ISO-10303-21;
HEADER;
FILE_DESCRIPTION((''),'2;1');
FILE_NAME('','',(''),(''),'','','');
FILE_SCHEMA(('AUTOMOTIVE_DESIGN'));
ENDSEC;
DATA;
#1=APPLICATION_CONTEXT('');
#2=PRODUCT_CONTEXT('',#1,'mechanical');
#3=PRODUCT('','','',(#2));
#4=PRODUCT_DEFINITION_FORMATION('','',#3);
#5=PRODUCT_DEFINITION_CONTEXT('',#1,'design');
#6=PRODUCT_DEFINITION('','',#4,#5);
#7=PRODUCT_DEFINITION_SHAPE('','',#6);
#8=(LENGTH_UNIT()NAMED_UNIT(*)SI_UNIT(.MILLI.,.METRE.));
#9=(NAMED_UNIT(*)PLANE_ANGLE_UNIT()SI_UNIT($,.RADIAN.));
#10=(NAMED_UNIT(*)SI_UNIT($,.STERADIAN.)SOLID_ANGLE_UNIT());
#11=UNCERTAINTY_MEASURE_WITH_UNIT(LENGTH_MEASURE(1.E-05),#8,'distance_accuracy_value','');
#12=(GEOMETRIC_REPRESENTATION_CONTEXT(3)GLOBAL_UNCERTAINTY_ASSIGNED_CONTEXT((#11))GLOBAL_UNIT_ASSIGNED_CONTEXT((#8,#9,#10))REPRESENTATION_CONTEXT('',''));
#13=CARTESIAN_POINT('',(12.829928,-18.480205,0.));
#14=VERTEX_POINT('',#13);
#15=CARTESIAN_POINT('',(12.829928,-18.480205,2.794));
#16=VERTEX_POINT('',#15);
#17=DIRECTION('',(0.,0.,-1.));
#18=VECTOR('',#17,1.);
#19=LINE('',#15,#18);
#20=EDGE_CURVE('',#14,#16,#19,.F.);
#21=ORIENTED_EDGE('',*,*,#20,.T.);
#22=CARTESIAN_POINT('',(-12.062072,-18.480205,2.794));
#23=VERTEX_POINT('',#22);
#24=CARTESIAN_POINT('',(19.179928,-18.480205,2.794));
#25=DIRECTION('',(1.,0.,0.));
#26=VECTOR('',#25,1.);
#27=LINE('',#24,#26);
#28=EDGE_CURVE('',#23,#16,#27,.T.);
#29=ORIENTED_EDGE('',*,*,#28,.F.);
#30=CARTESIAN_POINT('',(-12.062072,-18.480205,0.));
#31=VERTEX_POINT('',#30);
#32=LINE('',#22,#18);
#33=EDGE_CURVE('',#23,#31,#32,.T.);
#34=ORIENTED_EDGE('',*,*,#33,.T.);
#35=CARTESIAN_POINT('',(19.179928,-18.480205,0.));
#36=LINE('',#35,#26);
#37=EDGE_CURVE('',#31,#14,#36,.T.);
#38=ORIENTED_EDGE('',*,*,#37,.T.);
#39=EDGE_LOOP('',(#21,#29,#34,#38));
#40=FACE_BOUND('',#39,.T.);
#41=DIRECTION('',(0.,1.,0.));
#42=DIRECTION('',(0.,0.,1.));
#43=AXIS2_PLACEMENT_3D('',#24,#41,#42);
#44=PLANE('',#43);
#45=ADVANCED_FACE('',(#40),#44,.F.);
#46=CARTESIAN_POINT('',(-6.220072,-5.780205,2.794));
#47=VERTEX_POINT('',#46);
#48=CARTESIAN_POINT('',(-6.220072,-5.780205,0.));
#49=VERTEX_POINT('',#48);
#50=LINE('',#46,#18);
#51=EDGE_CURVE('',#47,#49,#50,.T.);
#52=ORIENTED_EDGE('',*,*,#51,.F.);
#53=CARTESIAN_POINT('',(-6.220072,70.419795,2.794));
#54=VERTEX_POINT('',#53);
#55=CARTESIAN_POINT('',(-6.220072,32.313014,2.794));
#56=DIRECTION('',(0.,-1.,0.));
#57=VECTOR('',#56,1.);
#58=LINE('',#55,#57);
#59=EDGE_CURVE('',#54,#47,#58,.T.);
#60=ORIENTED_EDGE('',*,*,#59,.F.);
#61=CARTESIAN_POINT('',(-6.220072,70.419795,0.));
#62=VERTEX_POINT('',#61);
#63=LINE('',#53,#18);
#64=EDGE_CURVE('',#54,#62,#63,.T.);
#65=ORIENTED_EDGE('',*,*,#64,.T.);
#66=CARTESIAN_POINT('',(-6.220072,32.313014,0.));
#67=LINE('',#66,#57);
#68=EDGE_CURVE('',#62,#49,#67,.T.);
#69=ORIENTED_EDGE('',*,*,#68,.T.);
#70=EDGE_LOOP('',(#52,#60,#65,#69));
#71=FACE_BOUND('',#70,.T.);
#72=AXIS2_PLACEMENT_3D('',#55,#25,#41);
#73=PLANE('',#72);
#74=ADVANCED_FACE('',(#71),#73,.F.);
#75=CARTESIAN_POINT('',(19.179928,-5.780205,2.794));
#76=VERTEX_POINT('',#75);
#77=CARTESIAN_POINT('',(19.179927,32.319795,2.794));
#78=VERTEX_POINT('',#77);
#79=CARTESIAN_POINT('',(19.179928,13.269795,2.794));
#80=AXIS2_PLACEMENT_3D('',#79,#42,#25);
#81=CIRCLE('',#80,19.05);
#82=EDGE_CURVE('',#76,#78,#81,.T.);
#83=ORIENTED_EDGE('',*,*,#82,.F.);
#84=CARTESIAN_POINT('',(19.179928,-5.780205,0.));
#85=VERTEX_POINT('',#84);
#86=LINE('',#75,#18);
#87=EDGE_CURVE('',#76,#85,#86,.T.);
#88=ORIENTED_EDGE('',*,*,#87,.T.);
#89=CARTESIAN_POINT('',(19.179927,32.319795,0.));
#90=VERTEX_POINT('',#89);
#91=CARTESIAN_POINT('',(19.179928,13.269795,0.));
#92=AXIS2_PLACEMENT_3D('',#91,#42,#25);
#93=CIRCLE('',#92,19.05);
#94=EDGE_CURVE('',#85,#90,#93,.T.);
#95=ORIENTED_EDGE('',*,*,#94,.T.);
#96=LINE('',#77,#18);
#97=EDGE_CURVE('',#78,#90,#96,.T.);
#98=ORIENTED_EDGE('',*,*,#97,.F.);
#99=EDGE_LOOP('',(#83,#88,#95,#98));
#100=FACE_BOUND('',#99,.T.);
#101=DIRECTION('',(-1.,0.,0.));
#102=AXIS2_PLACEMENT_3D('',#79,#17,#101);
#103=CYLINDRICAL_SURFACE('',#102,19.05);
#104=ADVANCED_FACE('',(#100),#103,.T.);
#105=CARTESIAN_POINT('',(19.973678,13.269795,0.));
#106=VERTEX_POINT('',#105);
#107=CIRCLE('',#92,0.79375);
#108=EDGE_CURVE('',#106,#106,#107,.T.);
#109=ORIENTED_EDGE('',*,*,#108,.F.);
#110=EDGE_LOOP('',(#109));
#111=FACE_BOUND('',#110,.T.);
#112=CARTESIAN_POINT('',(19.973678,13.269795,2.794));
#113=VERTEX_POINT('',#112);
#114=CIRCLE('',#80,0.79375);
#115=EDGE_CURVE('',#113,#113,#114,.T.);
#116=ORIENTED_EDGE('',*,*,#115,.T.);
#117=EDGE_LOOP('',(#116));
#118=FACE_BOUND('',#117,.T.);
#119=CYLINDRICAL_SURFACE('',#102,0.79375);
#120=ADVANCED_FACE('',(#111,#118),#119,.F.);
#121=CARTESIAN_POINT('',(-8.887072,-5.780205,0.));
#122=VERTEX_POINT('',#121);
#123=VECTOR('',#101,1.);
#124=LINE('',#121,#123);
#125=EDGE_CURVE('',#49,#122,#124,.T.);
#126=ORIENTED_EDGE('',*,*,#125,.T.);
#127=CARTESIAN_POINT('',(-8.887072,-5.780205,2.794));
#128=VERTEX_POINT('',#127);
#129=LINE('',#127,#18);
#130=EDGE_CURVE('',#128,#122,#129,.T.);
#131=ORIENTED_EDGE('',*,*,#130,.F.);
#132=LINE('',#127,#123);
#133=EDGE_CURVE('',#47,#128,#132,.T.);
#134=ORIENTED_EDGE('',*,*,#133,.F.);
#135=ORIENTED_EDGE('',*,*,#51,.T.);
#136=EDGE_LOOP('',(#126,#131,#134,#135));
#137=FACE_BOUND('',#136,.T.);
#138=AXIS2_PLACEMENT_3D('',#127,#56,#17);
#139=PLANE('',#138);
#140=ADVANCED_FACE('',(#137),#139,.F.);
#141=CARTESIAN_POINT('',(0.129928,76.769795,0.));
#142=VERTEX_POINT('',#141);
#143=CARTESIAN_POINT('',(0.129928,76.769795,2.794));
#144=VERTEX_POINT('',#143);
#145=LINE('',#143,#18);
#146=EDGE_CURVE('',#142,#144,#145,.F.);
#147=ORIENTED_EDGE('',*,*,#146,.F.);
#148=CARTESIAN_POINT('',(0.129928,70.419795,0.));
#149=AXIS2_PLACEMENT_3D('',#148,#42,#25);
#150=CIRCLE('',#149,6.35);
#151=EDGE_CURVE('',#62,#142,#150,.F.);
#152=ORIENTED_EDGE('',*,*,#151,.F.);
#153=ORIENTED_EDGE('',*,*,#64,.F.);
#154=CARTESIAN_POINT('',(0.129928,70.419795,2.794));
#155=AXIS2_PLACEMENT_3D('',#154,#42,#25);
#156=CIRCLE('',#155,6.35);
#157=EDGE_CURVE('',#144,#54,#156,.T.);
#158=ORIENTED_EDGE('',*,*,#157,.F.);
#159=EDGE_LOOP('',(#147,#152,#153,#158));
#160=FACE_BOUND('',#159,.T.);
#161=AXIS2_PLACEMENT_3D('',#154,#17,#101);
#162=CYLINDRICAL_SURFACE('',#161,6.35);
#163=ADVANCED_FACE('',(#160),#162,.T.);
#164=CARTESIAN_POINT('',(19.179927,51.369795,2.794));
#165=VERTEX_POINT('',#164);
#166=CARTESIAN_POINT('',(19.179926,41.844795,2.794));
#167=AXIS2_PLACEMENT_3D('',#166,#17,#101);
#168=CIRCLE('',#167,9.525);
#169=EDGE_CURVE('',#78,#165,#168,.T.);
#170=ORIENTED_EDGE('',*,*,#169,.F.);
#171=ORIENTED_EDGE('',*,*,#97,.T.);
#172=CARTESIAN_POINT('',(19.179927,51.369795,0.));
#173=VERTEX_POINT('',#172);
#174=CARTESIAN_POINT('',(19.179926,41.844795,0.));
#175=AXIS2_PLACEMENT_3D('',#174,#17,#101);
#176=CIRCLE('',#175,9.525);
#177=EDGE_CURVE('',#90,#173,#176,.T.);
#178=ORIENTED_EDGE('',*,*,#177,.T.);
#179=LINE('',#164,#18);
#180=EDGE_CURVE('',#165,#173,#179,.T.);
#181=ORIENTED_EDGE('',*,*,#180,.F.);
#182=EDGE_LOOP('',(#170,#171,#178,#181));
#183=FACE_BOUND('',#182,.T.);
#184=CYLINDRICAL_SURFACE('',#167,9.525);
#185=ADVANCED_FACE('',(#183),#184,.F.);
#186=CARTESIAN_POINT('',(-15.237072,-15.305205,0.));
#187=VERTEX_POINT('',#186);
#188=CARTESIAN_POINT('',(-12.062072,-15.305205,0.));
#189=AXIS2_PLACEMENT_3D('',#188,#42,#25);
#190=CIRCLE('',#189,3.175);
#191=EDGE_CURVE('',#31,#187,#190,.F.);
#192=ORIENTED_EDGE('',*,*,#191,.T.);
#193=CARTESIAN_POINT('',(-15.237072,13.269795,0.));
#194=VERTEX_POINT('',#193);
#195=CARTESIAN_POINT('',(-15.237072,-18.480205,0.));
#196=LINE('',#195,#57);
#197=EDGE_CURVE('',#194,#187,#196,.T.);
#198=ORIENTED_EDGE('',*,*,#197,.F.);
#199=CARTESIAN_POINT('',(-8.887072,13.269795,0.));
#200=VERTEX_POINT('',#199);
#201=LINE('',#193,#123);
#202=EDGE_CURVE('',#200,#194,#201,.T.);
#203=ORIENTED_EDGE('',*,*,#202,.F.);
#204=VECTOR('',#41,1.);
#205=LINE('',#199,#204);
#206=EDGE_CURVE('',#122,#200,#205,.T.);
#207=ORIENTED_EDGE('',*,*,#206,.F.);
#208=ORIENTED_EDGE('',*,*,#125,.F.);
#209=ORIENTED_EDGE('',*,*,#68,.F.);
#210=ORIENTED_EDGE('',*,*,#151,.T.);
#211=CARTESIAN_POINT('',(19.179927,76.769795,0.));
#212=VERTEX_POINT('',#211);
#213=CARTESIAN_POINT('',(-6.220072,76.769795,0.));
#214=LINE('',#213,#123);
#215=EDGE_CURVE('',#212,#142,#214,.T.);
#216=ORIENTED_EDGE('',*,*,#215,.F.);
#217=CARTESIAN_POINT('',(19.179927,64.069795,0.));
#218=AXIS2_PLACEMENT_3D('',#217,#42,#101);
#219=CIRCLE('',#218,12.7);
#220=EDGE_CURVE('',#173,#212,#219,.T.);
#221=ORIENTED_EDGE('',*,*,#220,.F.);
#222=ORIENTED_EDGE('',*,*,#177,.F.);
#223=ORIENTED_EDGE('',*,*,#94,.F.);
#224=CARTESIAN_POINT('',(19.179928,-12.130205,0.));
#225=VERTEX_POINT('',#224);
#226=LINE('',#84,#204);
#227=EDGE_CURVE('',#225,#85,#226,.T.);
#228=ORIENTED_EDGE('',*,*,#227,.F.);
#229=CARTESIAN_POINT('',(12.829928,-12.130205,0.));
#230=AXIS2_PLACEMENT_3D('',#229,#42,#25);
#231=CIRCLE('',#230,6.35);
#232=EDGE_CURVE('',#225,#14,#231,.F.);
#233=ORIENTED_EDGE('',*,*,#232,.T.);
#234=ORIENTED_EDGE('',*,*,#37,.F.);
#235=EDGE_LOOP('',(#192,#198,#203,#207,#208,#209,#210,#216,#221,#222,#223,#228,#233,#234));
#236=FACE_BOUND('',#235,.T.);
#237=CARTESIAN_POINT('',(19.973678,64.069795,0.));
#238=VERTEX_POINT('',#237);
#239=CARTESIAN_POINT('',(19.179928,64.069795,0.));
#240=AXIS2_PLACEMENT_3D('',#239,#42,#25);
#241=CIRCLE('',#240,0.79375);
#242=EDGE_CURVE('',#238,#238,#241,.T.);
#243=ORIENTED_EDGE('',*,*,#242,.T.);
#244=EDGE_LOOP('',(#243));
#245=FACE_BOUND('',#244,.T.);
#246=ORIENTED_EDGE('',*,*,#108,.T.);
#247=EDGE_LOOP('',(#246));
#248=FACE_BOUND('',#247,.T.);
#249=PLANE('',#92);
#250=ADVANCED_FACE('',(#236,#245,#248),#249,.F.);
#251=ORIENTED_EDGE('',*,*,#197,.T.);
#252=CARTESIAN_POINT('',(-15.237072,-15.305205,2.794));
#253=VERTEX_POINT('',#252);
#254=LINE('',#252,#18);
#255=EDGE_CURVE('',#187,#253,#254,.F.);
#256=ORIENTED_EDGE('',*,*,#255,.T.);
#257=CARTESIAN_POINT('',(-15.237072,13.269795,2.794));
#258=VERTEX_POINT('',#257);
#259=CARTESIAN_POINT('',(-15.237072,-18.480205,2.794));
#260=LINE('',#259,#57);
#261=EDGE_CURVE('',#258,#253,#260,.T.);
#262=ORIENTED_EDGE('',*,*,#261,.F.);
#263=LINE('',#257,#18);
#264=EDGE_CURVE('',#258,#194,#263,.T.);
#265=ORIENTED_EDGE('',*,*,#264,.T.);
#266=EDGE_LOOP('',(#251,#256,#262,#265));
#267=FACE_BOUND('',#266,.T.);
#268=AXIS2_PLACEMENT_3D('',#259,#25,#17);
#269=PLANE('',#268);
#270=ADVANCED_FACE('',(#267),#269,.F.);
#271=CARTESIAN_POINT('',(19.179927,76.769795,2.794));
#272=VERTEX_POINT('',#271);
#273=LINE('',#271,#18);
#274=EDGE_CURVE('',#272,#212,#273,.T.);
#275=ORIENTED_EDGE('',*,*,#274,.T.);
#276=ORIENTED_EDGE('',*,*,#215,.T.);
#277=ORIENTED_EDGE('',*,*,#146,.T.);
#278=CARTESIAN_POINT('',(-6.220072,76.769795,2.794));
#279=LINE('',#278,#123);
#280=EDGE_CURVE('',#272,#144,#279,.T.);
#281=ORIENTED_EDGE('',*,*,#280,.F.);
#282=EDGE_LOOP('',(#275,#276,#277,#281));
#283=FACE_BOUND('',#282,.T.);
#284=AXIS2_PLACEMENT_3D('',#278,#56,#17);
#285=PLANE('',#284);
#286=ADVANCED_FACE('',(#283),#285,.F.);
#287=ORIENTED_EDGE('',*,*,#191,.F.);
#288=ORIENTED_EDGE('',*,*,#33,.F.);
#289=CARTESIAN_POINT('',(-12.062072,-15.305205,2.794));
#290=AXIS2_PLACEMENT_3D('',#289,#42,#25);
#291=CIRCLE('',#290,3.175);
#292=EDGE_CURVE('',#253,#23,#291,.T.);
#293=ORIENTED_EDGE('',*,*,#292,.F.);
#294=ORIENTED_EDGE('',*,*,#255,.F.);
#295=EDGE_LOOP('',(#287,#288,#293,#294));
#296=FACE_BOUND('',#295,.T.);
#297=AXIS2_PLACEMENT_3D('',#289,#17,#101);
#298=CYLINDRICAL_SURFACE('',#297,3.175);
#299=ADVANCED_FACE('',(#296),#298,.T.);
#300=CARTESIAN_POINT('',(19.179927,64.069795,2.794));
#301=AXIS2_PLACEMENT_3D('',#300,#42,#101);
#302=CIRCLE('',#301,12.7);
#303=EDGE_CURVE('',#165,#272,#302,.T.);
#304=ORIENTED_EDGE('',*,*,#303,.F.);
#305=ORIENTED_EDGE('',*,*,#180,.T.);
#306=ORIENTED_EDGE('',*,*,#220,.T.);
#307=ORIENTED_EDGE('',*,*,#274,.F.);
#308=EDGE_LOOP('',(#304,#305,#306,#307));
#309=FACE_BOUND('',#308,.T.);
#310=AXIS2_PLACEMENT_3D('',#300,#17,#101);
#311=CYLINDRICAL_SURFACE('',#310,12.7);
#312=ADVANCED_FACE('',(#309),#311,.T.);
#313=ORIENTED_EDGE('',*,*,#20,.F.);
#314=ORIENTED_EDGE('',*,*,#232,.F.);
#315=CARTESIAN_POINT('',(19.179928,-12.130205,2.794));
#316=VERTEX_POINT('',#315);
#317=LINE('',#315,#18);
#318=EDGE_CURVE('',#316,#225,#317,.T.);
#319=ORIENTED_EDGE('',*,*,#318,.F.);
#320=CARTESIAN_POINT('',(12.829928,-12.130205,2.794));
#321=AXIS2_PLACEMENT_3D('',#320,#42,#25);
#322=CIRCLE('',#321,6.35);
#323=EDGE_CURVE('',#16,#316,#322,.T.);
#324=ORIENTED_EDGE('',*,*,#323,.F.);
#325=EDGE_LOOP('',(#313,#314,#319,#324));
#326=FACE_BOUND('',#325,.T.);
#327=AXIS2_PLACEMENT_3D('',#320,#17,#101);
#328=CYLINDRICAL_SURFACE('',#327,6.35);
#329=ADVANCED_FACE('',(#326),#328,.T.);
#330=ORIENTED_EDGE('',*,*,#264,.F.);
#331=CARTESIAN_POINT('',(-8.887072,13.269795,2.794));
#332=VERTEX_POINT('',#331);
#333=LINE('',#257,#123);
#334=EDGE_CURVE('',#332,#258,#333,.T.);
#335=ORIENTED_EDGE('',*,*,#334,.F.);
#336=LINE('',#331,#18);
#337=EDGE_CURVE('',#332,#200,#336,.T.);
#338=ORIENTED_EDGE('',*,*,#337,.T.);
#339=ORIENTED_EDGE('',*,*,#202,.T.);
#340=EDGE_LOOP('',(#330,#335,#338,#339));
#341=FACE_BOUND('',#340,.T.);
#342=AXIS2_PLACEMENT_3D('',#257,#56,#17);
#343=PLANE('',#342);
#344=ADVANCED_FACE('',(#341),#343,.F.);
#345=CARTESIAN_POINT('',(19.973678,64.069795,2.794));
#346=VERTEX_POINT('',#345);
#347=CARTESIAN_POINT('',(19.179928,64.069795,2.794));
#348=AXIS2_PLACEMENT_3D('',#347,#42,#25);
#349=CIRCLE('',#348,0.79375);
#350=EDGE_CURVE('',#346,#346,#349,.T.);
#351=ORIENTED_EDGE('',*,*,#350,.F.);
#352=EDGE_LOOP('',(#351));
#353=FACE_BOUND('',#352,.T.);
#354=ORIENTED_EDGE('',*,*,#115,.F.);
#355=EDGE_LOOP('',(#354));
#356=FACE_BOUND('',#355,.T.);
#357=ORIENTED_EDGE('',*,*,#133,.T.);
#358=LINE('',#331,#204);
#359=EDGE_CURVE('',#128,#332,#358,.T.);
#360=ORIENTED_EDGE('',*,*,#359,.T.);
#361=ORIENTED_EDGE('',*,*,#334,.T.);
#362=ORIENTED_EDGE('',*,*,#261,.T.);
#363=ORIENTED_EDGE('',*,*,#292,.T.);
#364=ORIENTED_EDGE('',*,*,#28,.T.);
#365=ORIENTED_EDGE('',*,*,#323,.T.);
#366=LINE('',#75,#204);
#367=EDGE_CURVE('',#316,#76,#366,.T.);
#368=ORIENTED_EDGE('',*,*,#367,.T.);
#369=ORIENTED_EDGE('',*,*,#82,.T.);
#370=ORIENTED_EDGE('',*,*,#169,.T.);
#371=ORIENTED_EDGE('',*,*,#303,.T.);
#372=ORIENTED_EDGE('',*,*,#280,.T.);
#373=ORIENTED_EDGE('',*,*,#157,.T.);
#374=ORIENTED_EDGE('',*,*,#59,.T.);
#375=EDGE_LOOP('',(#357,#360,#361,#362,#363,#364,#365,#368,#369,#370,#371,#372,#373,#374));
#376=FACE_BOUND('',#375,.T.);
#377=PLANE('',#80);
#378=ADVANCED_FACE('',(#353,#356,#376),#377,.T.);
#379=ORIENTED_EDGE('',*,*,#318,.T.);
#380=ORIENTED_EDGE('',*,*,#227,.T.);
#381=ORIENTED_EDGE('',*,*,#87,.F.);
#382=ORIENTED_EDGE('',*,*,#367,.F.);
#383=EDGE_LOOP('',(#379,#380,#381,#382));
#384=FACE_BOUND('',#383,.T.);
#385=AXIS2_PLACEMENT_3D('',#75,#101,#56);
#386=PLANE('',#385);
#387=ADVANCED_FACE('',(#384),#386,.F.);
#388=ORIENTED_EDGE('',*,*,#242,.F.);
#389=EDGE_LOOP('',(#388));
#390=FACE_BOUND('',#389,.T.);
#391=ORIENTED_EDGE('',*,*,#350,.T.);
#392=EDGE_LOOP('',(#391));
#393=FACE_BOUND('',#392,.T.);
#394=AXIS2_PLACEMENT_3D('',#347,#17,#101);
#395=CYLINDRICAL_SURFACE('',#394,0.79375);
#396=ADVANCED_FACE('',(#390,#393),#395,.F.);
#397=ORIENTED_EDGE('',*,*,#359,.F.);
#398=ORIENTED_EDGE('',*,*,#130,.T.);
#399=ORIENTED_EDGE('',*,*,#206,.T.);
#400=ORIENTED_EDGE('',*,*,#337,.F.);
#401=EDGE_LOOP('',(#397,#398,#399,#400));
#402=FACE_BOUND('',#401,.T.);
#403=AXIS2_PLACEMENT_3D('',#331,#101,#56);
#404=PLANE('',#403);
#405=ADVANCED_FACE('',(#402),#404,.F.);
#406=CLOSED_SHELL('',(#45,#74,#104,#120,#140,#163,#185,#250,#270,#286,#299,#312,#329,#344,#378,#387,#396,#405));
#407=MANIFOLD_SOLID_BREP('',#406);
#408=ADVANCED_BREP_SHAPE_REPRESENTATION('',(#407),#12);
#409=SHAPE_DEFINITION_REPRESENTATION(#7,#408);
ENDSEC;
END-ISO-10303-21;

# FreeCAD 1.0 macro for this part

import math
import FreeCAD as App
import Part
import Sketcher
from FreeCAD import Vector
Q = App.Units.Quantity


def edges_at(feature, points):
    """Names of the edges that pass closest to the given points."""
    edges = feature.Shape.Edges
    near = lambda p: min(range(len(edges)), key=lambda i: edges[i].distToShape(Part.Vertex(*p))[0])
    return sorted({f"Edge{near(p) + 1}" for p in points})

doc = App.newDocument("Part")
body = doc.addObject("PartDesign::Body", "Body")

# Sketch on XY plane
sketch1 = doc.addObject("Sketcher::SketchObject", "Sketch")
body.addObject(sketch1)
sketch1.AttachmentSupport = (doc.XY_Plane, [""])
sketch1.MapMode = "FlatFace"
sketch1.addGeometry(Part.LineSegment(Vector(-8.9, 13.3, 0), Vector(-15.2, 13.3, 0)), False)
sketch1.addGeometry(Part.LineSegment(Vector(-15.2, 13.3, 0), Vector(-15.2, -18.5, 0)), False)
sketch1.addGeometry(Part.LineSegment(Vector(-15.2, -18.5, 0), Vector(19.2, -18.5, 0)), False)
sketch1.addGeometry(Part.LineSegment(Vector(19.2, -18.5, 0), Vector(19.2, -5.8, 0)), False)
sketch1.addGeometry(Part.ArcOfCircle(Part.Circle(Vector(19.2, 13.3, 0), Vector(0, 0, 1), 19.1), math.radians(-90), math.radians(90)), False)
sketch1.addGeometry(Part.ArcOfCircle(Part.Circle(Vector(19.2, 41.8, 0), Vector(0, 0, 1), 9.5), math.radians(90), math.radians(270)), False)
sketch1.addGeometry(Part.ArcOfCircle(Part.Circle(Vector(19.2, 64.1, 0), Vector(0, 0, 1), 12.7), math.radians(-90), math.radians(90)), False)
sketch1.addGeometry(Part.LineSegment(Vector(19.2, 76.8, 0), Vector(-6.2, 76.8, 0)), False)
sketch1.addGeometry(Part.LineSegment(Vector(-6.2, 76.8, 0), Vector(-6.2, -5.8, 0)), False)
sketch1.addGeometry(Part.LineSegment(Vector(-6.2, -5.8, 0), Vector(-8.9, -5.8, 0)), False)
sketch1.addGeometry(Part.LineSegment(Vector(-8.9, -5.8, 0), Vector(-8.9, 13.3, 0)), False)
sketch1.addGeometry(Part.Circle(Vector(19.2, 13.3, 0), Vector(0, 0, 1), 0.8), False)
sketch1.addGeometry(Part.Circle(Vector(19.2, 64.1, 0), Vector(0, 0, 1), 0.8), False)
sketch1.addConstraint(Sketcher.Constraint("Coincident", 0, 2, 1, 1))
sketch1.addConstraint(Sketcher.Constraint("Coincident", 1, 2, 2, 1))
sketch1.addConstraint(Sketcher.Constraint("Coincident", 2, 2, 3, 1))
sketch1.addConstraint(Sketcher.Constraint("Coincident", 3, 2, 4, 1))
sketch1.addConstraint(Sketcher.Constraint("Tangent", 4, 2, 5, 2))
sketch1.addConstraint(Sketcher.Constraint("Tangent", 5, 1, 6, 1))
sketch1.addConstraint(Sketcher.Constraint("Tangent", 6, 2, 7, 1))
sketch1.addConstraint(Sketcher.Constraint("Coincident", 7, 2, 8, 1))
sketch1.addConstraint(Sketcher.Constraint("Coincident", 8, 2, 9, 1))
sketch1.addConstraint(Sketcher.Constraint("Coincident", 9, 2, 10, 1))
sketch1.addConstraint(Sketcher.Constraint("Coincident", 10, 2, 0, 1))
sketch1.addConstraint(Sketcher.Constraint("Horizontal", 0))
sketch1.addConstraint(Sketcher.Constraint("Vertical", 1))
sketch1.addConstraint(Sketcher.Constraint("Horizontal", 2))
sketch1.addConstraint(Sketcher.Constraint("Vertical", 3))
sketch1.addConstraint(Sketcher.Constraint("Horizontal", 7))
sketch1.addConstraint(Sketcher.Constraint("Vertical", 8))
sketch1.addConstraint(Sketcher.Constraint("Horizontal", 9))
sketch1.addConstraint(Sketcher.Constraint("Vertical", 10))
sketch1.addConstraint(Sketcher.Constraint("Coincident", 11, 3, 4, 3))
sketch1.addConstraint(Sketcher.Constraint("Coincident", 12, 3, 6, 3))
sketch1.addConstraint(Sketcher.Constraint("Equal", 11, 12))
sketch1.addConstraint(Sketcher.Constraint("Horizontal", 11, 3, 0, 2))
sketch1.addConstraint(Sketcher.Constraint("Horizontal", 3, 2, 8, 2))
sketch1.addConstraint(Sketcher.Constraint("Vertical", 4, 3, 5, 3))
sketch1.addConstraint(Sketcher.Constraint("Vertical", 5, 3, 6, 3))
sketch1.addConstraint(Sketcher.Constraint("Vertical", 12, 3, 2, 2))
sketch1.addConstraint(Sketcher.Constraint("Radius", 6, Q("0.5 in")))
sketch1.addConstraint(Sketcher.Constraint("DistanceX", 7, 2, 7, 1, Q("1 in")))
sketch1.addConstraint(Sketcher.Constraint("Radius", 4, Q("0.75 in")))
sketch1.addConstraint(Sketcher.Constraint("Diameter", 11, Q("0.0625 in")))
sketch1.addConstraint(Sketcher.Constraint("DistanceY", 3, 1, 3, 2, Q("0.5 in")))
sketch1.addConstraint(Sketcher.Constraint("Radius", 5, Q("0.375 in")))
sketch1.addConstraint(Sketcher.Constraint("DistanceX", 0, 2, 0, 1, Q("0.25 in")))
sketch1.addConstraint(Sketcher.Constraint("DistanceX", 2, 1, 2, 2, Q("1.355 in")))
sketch1.addConstraint(Sketcher.Constraint("DistanceX", -1, 1, 4, 3, Q("19.179928 mm")))
sketch1.addConstraint(Sketcher.Constraint("DistanceY", -1, 1, 4, 3, Q("13.269795 mm")))
pad1 = doc.addObject("PartDesign::Pad", "Pad")
body.addObject(pad1)
pad1.Profile = sketch1
pad1.Length = Q("0.11 in")
doc.recompute()

fillet = doc.addObject("PartDesign::Fillet", "Fillet")
body.addObject(fillet)
fillet.Base = (pad1, edges_at(pad1, [(19.18, -18.48, 1.397), (-6.22, 76.77, 1.397)]))
fillet.Radius = Q("0.25 in")
doc.recompute()

fillet2 = doc.addObject("PartDesign::Fillet", "Fillet001")
body.addObject(fillet2)
fillet2.Base = (fillet, edges_at(fillet, [(-15.237, -18.48, 1.397)]))
fillet2.Radius = Q("0.125 in")

doc.recompute()
